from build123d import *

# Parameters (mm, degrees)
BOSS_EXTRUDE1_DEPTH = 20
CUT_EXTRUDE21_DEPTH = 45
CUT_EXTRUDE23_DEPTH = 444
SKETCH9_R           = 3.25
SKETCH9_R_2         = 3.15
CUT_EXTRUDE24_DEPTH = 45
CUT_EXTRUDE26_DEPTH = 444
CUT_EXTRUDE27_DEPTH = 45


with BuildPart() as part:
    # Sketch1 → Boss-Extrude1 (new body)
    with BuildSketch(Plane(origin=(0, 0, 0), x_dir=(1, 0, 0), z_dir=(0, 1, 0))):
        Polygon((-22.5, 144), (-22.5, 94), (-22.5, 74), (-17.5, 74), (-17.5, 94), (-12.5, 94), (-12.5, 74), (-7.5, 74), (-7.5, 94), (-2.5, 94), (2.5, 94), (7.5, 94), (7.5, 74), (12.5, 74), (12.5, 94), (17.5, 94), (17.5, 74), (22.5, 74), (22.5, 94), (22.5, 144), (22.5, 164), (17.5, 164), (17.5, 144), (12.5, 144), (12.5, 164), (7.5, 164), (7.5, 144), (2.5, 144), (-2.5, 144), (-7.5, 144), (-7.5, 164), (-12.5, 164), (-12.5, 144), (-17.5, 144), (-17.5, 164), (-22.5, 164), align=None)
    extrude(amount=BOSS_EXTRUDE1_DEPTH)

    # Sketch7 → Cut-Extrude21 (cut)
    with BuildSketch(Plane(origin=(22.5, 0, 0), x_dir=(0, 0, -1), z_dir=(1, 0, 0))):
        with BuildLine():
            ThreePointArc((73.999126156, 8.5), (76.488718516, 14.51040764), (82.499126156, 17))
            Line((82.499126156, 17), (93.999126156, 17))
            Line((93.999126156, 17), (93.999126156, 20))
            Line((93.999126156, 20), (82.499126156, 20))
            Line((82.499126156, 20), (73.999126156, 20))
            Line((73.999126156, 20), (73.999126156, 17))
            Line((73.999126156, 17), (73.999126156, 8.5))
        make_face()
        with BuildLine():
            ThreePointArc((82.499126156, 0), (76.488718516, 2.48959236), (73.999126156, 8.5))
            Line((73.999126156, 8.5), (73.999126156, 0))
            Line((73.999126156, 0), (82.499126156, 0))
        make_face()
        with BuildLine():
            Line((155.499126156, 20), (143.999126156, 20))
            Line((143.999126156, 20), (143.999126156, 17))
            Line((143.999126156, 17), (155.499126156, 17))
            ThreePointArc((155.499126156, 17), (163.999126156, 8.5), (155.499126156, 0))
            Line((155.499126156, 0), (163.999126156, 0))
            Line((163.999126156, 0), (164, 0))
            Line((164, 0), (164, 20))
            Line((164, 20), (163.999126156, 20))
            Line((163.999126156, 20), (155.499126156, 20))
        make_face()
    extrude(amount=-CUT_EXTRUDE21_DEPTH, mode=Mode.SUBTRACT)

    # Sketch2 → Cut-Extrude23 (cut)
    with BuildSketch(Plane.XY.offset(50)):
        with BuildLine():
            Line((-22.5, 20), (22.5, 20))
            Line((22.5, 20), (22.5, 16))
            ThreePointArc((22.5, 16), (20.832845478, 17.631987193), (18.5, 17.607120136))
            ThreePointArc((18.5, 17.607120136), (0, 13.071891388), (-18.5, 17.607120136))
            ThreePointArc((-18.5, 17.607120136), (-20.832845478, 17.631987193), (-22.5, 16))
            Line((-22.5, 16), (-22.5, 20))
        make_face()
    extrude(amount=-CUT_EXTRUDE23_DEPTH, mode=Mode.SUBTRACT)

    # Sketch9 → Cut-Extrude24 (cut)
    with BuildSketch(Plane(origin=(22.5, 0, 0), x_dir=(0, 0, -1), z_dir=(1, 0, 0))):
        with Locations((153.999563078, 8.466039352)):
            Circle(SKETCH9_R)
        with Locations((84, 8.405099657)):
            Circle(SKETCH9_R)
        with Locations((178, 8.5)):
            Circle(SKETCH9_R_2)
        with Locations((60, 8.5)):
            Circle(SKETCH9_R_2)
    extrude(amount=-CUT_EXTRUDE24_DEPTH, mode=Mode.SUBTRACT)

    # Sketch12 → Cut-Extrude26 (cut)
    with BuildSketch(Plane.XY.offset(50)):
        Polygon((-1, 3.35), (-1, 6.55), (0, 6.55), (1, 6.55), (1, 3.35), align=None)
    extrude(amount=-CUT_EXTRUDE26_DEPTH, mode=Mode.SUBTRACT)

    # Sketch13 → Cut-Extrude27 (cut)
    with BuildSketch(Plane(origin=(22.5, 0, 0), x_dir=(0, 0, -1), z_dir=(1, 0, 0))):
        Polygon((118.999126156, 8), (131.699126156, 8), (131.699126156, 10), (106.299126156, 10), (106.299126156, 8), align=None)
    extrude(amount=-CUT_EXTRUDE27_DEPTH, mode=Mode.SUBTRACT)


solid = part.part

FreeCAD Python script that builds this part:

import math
import FreeCAD as App
import Part
import Sketcher

doc = App.newDocument("Part")
body = doc.addObject("PartDesign::Body", "Body")

# Sketch on XZ plane
sketch1 = body.newObject("Sketcher::SketchObject", "Sketch")
sketch1.AttachmentSupport = (doc.getObject("XZ_Plane"), [""])
sketch1.MapMode = "FlatFace"
sketch1.addGeometry(Part.LineSegment(App.Vector(-22, -74, 0), App.Vector(-18, -74, 0)), False)
sketch1.addGeometry(Part.LineSegment(App.Vector(-18, -74, 0), App.Vector(-18, -94, 0)), False)
sketch1.addGeometry(Part.LineSegment(App.Vector(-18, -94, 0), App.Vector(-12, -94, 0)), False)
sketch1.addGeometry(Part.LineSegment(App.Vector(-12, -94, 0), App.Vector(-12, -74, 0)), False)
sketch1.addGeometry(Part.LineSegment(App.Vector(-12, -74, 0), App.Vector(-8, -74, 0)), False)
sketch1.addGeometry(Part.LineSegment(App.Vector(-8, -74, 0), App.Vector(-8, -94, 0)), False)
sketch1.addGeometry(Part.LineSegment(App.Vector(-8, -94, 0), App.Vector(8, -94, 0)), False)
sketch1.addGeometry(Part.LineSegment(App.Vector(8, -94, 0), App.Vector(8, -74, 0)), False)
sketch1.addGeometry(Part.LineSegment(App.Vector(8, -74, 0), App.Vector(12, -74, 0)), False)
sketch1.addGeometry(Part.LineSegment(App.Vector(12, -74, 0), App.Vector(12, -94, 0)), False)
sketch1.addGeometry(Part.LineSegment(App.Vector(12, -94, 0), App.Vector(18, -94, 0)), False)
sketch1.addGeometry(Part.LineSegment(App.Vector(18, -94, 0), App.Vector(18, -74, 0)), False)
sketch1.addGeometry(Part.LineSegment(App.Vector(18, -74, 0), App.Vector(22, -74, 0)), False)
sketch1.addGeometry(Part.LineSegment(App.Vector(22, -74, 0), App.Vector(22, -164, 0)), False)
sketch1.addGeometry(Part.LineSegment(App.Vector(22, -164, 0), App.Vector(18, -164, 0)), False)
sketch1.addGeometry(Part.LineSegment(App.Vector(18, -164, 0), App.Vector(18, -144, 0)), False)
sketch1.addGeometry(Part.LineSegment(App.Vector(18, -144, 0), App.Vector(12, -144, 0)), False)
sketch1.addGeometry(Part.LineSegment(App.Vector(12, -144, 0), App.Vector(12, -164, 0)), False)
sketch1.addGeometry(Part.LineSegment(App.Vector(12, -164, 0), App.Vector(8, -164, 0)), False)
sketch1.addGeometry(Part.LineSegment(App.Vector(8, -164, 0), App.Vector(8, -144, 0)), False)
sketch1.addGeometry(Part.LineSegment(App.Vector(8, -144, 0), App.Vector(-8, -144, 0)), False)
sketch1.addGeometry(Part.LineSegment(App.Vector(-8, -144, 0), App.Vector(-8, -164, 0)), False)
sketch1.addGeometry(Part.LineSegment(App.Vector(-8, -164, 0), App.Vector(-12, -164, 0)), False)
sketch1.addGeometry(Part.LineSegment(App.Vector(-12, -164, 0), App.Vector(-12, -144, 0)), False)
sketch1.addGeometry(Part.LineSegment(App.Vector(-12, -144, 0), App.Vector(-18, -144, 0)), False)
sketch1.addGeometry(Part.LineSegment(App.Vector(-18, -144, 0), App.Vector(-18, -164, 0)), False)
sketch1.addGeometry(Part.LineSegment(App.Vector(-18, -164, 0), App.Vector(-22, -164, 0)), False)
sketch1.addGeometry(Part.LineSegment(App.Vector(-22, -164, 0), App.Vector(-22, -74, 0)), False)
sketch1.addConstraint(Sketcher.Constraint("Coincident", 0, 2, 1, 1))
sketch1.addConstraint(Sketcher.Constraint("Coincident", 1, 2, 2, 1))
sketch1.addConstraint(Sketcher.Constraint("Coincident", 2, 2, 3, 1))
sketch1.addConstraint(Sketcher.Constraint("Coincident", 3, 2, 4, 1))
sketch1.addConstraint(Sketcher.Constraint("Coincident", 4, 2, 5, 1))
sketch1.addConstraint(Sketcher.Constraint("Coincident", 5, 2, 6, 1))
sketch1.addConstraint(Sketcher.Constraint("Coincident", 6, 2, 7, 1))
sketch1.addConstraint(Sketcher.Constraint("Coincident", 7, 2, 8, 1))
sketch1.addConstraint(Sketcher.Constraint("Coincident", 8, 2, 9, 1))
sketch1.addConstraint(Sketcher.Constraint("Coincident", 9, 2, 10, 1))
sketch1.addConstraint(Sketcher.Constraint("Coincident", 10, 2, 11, 1))
sketch1.addConstraint(Sketcher.Constraint("Coincident", 11, 2, 12, 1))
sketch1.addConstraint(Sketcher.Constraint("Coincident", 12, 2, 13, 1))
sketch1.addConstraint(Sketcher.Constraint("Coincident", 13, 2, 14, 1))
sketch1.addConstraint(Sketcher.Constraint("Coincident", 14, 2, 15, 1))
sketch1.addConstraint(Sketcher.Constraint("Coincident", 15, 2, 16, 1))
sketch1.addConstraint(Sketcher.Constraint("Coincident", 16, 2, 17, 1))
sketch1.addConstraint(Sketcher.Constraint("Coincident", 17, 2, 18, 1))
sketch1.addConstraint(Sketcher.Constraint("Coincident", 18, 2, 19, 1))
sketch1.addConstraint(Sketcher.Constraint("Coincident", 19, 2, 20, 1))
sketch1.addConstraint(Sketcher.Constraint("Coincident", 20, 2, 21, 1))
sketch1.addConstraint(Sketcher.Constraint("Coincident", 21, 2, 22, 1))
sketch1.addConstraint(Sketcher.Constraint("Coincident", 22, 2, 23, 1))
sketch1.addConstraint(Sketcher.Constraint("Coincident", 23, 2, 24, 1))
sketch1.addConstraint(Sketcher.Constraint("Coincident", 24, 2, 25, 1))
sketch1.addConstraint(Sketcher.Constraint("Coincident", 25, 2, 26, 1))
sketch1.addConstraint(Sketcher.Constraint("Coincident", 26, 2, 27, 1))
sketch1.addConstraint(Sketcher.Constraint("Coincident", 27, 2, 0, 1))
sketch1.addConstraint(Sketcher.Constraint("Horizontal", 0))
sketch1.addConstraint(Sketcher.Constraint("Vertical", 1))
sketch1.addConstraint(Sketcher.Constraint("Horizontal", 2))
sketch1.addConstraint(Sketcher.Constraint("Vertical", 3))
sketch1.addConstraint(Sketcher.Constraint("Horizontal", 4))
sketch1.addConstraint(Sketcher.Constraint("Vertical", 5))
sketch1.addConstraint(Sketcher.Constraint("Horizontal", 6))
sketch1.addConstraint(Sketcher.Constraint("Vertical", 7))
sketch1.addConstraint(Sketcher.Constraint("Horizontal", 8))
sketch1.addConstraint(Sketcher.Constraint("Vertical", 9))
sketch1.addConstraint(Sketcher.Constraint("Horizontal", 10))
sketch1.addConstraint(Sketcher.Constraint("Vertical", 11))
sketch1.addConstraint(Sketcher.Constraint("Horizontal", 12))
sketch1.addConstraint(Sketcher.Constraint("Vertical", 13))
sketch1.addConstraint(Sketcher.Constraint("Horizontal", 14))
sketch1.addConstraint(Sketcher.Constraint("Vertical", 15))
sketch1.addConstraint(Sketcher.Constraint("Horizontal", 16))
sketch1.addConstraint(Sketcher.Constraint("Vertical", 17))
sketch1.addConstraint(Sketcher.Constraint("Horizontal", 18))
sketch1.addConstraint(Sketcher.Constraint("Vertical", 19))
sketch1.addConstraint(Sketcher.Constraint("Horizontal", 20))
sketch1.addConstraint(Sketcher.Constraint("Vertical", 21))
sketch1.addConstraint(Sketcher.Constraint("Horizontal", 22))
sketch1.addConstraint(Sketcher.Constraint("Vertical", 23))
sketch1.addConstraint(Sketcher.Constraint("Horizontal", 24))
sketch1.addConstraint(Sketcher.Constraint("Vertical", 25))
sketch1.addConstraint(Sketcher.Constraint("Horizontal", 26))
sketch1.addConstraint(Sketcher.Constraint("Vertical", 27))
sketch1.addConstraint(Sketcher.Constraint("Symmetric", 4, 2, 7, 2, -2))
sketch1.addConstraint(Sketcher.Constraint("Symmetric", 2, 2, 9, 2, -2))
sketch1.addConstraint(Sketcher.Constraint("Symmetric", 0, 2, 11, 2, -2))
sketch1.addConstraint(Sketcher.Constraint("Symmetric", 18, 2, 21, 2, -2))
sketch1.addConstraint(Sketcher.Constraint("Symmetric", 16, 2, 23, 2, -2))
sketch1.addConstraint(Sketcher.Constraint("Symmetric", 14, 2, 25, 2, -2))
sketch1.addConstraint(Sketcher.Constraint("Horizontal", 0, 2, 3, 2))
sketch1.addConstraint(Sketcher.Constraint("Horizontal", 2, 2, 5, 2))
sketch1.addConstraint(Sketcher.Constraint("Horizontal", 14, 2, 17, 2))
sketch1.addConstraint(Sketcher.Constraint("Horizontal", 16, 2, 19, 2))
sketch1.addConstraint(Sketcher.Constraint("Vertical", 11, 2, 14, 2))
sketch1.addConstraint(Sketcher.Constraint("Vertical", 9, 2, 16, 2))
sketch1.addConstraint(Sketcher.Constraint("Vertical", 7, 2, 18, 2))
sketch1.addConstraint(Sketcher.Constraint("Equal", 0, 2))
sketch1.addConstraint(Sketcher.Constraint("Equal", 2, 4))
sketch1.addConstraint(Sketcher.Constraint("Equal", 10, 12))
sketch1.addConstraint(Sketcher.Constraint("Equal", 11, 15))
sketch1.addConstraint(Sketcher.Constraint("DistanceX", 0, 1, 0, 2, 5.0))
sketch1.addConstraint(Sketcher.Constraint("DistanceX", 6, 1, 6, 2, 15.0))
sketch1.addConstraint(Sketcher.Constraint("DistanceY", 1, 2, 1, 1, 20.0))
sketch1.addConstraint(Sketcher.Constraint("DistanceY", 13, 2, 13, 1, 90.0))
sketch1.addConstraint(Sketcher.Constraint("DistanceY", 0, 2, -1, 1, 74.0))
pad1 = body.newObject("PartDesign::Pad", "Pad")
pad1.Profile = sketch1
pad1.Length = 20
pad1.Reversed = True

# Sketch on YZ plane
sketch2 = body.newObject("Sketcher::SketchObject", "Sketch001")
sketch2.AttachmentSupport = (doc.getObject("YZ_Plane"), [""])
sketch2.MapMode = "FlatFace"
sketch2.AttachmentOffset = App.Placement(App.Vector(0, 0, 22.5), App.Rotation())
sketch2.addGeometry(Part.ArcOfCircle(Part.Circle(App.Vector(8.5, -82.5, 0), App.Vector(0, 0, 1), 8.5), math.radians(0), math.radians(90)), False)
sketch2.addGeometry(Part.LineSegment(App.Vector(17, -82.5, 0), App.Vector(17, -94, 0)), False)
sketch2.addGeometry(Part.LineSegment(App.Vector(17, -94, 0), App.Vector(20, -94, 0)), False)
sketch2.addGeometry(Part.LineSegment(App.Vector(20, -94, 0), App.Vector(20, -74, 0)), False)
sketch2.addGeometry(Part.LineSegment(App.Vector(20, -74, 0), App.Vector(8.5, -74, 0)), False)
sketch2.addGeometry(Part.ArcOfCircle(Part.Circle(App.Vector(8.5, -82.5, 0), App.Vector(0, 0, 1), 8.5), math.radians(90), math.radians(180)), False)
sketch2.addGeometry(Part.LineSegment(App.Vector(8.5, -74, 0), App.Vector(0, -74, 0)), False)
sketch2.addGeometry(Part.LineSegment(App.Vector(0, -74, 0), App.Vector(0, -82.5, 0)), False)
sketch2.addGeometry(Part.LineSegment(App.Vector(20, -144, 0), App.Vector(17, -144, 0)), False)
sketch2.addGeometry(Part.LineSegment(App.Vector(17, -144, 0), App.Vector(17, -155.5, 0)), False)
sketch2.addGeometry(Part.ArcOfCircle(Part.Circle(App.Vector(8.5, -155.5, 0), App.Vector(0, 0, 1), 8.5), math.radians(180), math.radians(360)), False)
sketch2.addGeometry(Part.LineSegment(App.Vector(0, -155.5, 0), App.Vector(0, -164, 0)), False)
sketch2.addGeometry(Part.LineSegment(App.Vector(0, -164, 0), App.Vector(20, -164, 0)), False)
sketch2.addGeometry(Part.LineSegment(App.Vector(20, -164, 0), App.Vector(20, -144, 0)), False)
sketch2.addConstraint(Sketcher.Constraint("Tangent", 0, 1, 1, 1))
sketch2.addConstraint(Sketcher.Constraint("Coincident", 1, 2, 2, 1))
sketch2.addConstraint(Sketcher.Constraint("Coincident", 2, 2, 3, 1))
sketch2.addConstraint(Sketcher.Constraint("Coincident", 3, 2, 4, 1))
sketch2.addConstraint(Sketcher.Constraint("Tangent", 4, 2, 0, 2))
sketch2.addConstraint(Sketcher.Constraint("Tangent", 5, 1, 6, 1))
sketch2.addConstraint(Sketcher.Constraint("Coincident", 6, 2, 7, 1))
sketch2.addConstraint(Sketcher.Constraint("Tangent", 7, 2, 5, 2))
sketch2.addConstraint(Sketcher.Constraint("Coincident", 8, 2, 9, 1))
sketch2.addConstraint(Sketcher.Constraint("Tangent", 9, 2, 10, 2))
sketch2.addConstraint(Sketcher.Constraint("Tangent", 10, 1, 11, 1))
sketch2.addConstraint(Sketcher.Constraint("Coincident", 11, 2, 12, 1))
sketch2.addConstraint(Sketcher.Constraint("Coincident", 12, 2, 13, 1))
sketch2.addConstraint(Sketcher.Constraint("Coincident", 13, 2, 8, 1))
sketch2.addConstraint(Sketcher.Constraint("Vertical", 1))
sketch2.addConstraint(Sketcher.Constraint("Horizontal", 2))
sketch2.addConstraint(Sketcher.Constraint("Vertical", 3))
sketch2.addConstraint(Sketcher.Constraint("Horizontal", 4))
sketch2.addConstraint(Sketcher.Constraint("Horizontal", 6))
sketch2.addConstraint(Sketcher.Constraint("Vertical", 7))
sketch2.addConstraint(Sketcher.Constraint("Horizontal", 8))
sketch2.addConstraint(Sketcher.Constraint("Vertical", 9))
sketch2.addConstraint(Sketcher.Constraint("Vertical", 11))
sketch2.addConstraint(Sketcher.Constraint("Horizontal", 12))
sketch2.addConstraint(Sketcher.Constraint("Vertical", 13))
sketch2.addConstraint(Sketcher.Constraint("Coincident", 5, 3, 0, 3))
sketch2.addConstraint(Sketcher.Constraint("Equal", 0, 5))
sketch2.addConstraint(Sketcher.Constraint("Equal", 5, 10))
sketch2.addConstraint(Sketcher.Constraint("PointOnObject", 6, 2, -2))
sketch2.addConstraint(Sketcher.Constraint("PointOnObject", 10, 1, -2))
sketch2.addConstraint(Sketcher.Constraint("Vertical", 3, 2, 12, 2))
sketch2.addConstraint(Sketcher.Constraint("Equal", 4, 1))
sketch2.addConstraint(Sketcher.Constraint("Equal", 1, 9))
sketch2.addConstraint(Sketcher.Constraint("Radius", 0, 8.5))
sketch2.addConstraint(Sketcher.Constraint("DistanceX", 2, 1, 2, 2, 3.0))
sketch2.addConstraint(Sketcher.Constraint("DistanceY", 11, 2, -1, 1, 164.0))
sketch2.addConstraint(Sketcher.Constraint("DistanceY", 10, 3, 0, 3, 73.0))
sketch2.addConstraint(Sketcher.Constraint("DistanceY", 11, 2, 11, 1, 8.500874))
pocket1 = body.newObject("PartDesign::Pocket", "Pocket")
pocket1.Profile = sketch2
pocket1.Length = 45

# Sketch on XY plane
sketch3 = body.newObject("Sketcher::SketchObject", "Sketch002")
sketch3.AttachmentSupport = (doc.getObject("XY_Plane"), [""])
sketch3.MapMode = "FlatFace"
sketch3.AttachmentOffset = App.Placement(App.Vector(0, 0, 50), App.Rotation())
sketch3.addGeometry(Part.LineSegment(App.Vector(22.5, 20, 0), App.Vector(-22.5, 20, 0)), False)
sketch3.addGeometry(Part.LineSegment(App.Vector(-22.5, 20, 0), App.Vector(-22.5, 16, 0)), False)
sketch3.addGeometry(Part.ArcOfCircle(Part.Circle(App.Vector(-19.7, 14.8, 0), App.Vector(0, 0, 1), 3), math.radians(67), math.radians(157)), False)
sketch3.addGeometry(Part.ArcOfCircle(Part.Circle(App.Vector(0, 53.1, 0), App.Vector(0, 0, 1), 40), math.radians(-118), math.radians(-62)), False)
sketch3.addGeometry(Part.ArcOfCircle(Part.Circle(App.Vector(19.7, 14.8, 0), App.Vector(0, 0, 1), 3), math.radians(23), math.radians(113)), False)
sketch3.addGeometry(Part.LineSegment(App.Vector(22.5, 16, 0), App.Vector(22.5, 20, 0)), False)
sketch3.addConstraint(Sketcher.Constraint("Coincident", 0, 2, 1, 1))
sketch3.addConstraint(Sketcher.Constraint("Coincident", 1, 2, 2, 2))
sketch3.addConstraint(Sketcher.Constraint("Coincident", 2, 1, 3, 1))
sketch3.addConstraint(Sketcher.Constraint("Coincident", 3, 2, 4, 2))
sketch3.addConstraint(Sketcher.Constraint("Coincident", 4, 1, 5, 1))
sketch3.addConstraint(Sketcher.Constraint("Coincident", 5, 2, 0, 1))
sketch3.addConstraint(Sketcher.Constraint("Horizontal", 0))
sketch3.addConstraint(Sketcher.Constraint("Vertical", 1))
sketch3.addConstraint(Sketcher.Constraint("Vertical", 5))
sketch3.addConstraint(Sketcher.Constraint("Equal", 2, 4))
sketch3.addConstraint(Sketcher.Constraint("Symmetric", 2, 3, 4, 3, -2))
sketch3.addConstraint(Sketcher.Constraint("PointOnObject", 3, 3, -2))
sketch3.addConstraint(Sketcher.Constraint("Horizontal", 1, 2, 4, 1))
sketch3.addConstraint(Sketcher.Constraint("Radius", 3, 40.0))
sketch3.addConstraint(Sketcher.Constraint("DistanceX", 0, 2, 0, 1, 45.0))
sketch3.addConstraint(Sketcher.Constraint("DistanceY", 1, 2, 1, 1, 4.0))
sketch3.addConstraint(Sketcher.Constraint("DistanceY", -1, 1, 0, 2, 20.0))
sketch3.addConstraint(Sketcher.Constraint("DistanceX", 1, 2, 2, 1, 4.0))
sketch3.addConstraint(Sketcher.Constraint("Radius", 2, 3.048183))
sketch3.addConstraint(Sketcher.Constraint("DistanceX", 2, 3, -1, 1, 19.69644))
pocket2 = body.newObject("PartDesign::Pocket", "Pocket001")
pocket2.Profile = sketch3
pocket2.Length = 444

# Sketch on YZ plane
sketch4 = body.newObject("Sketcher::SketchObject", "Sketch003")
sketch4.AttachmentSupport = (doc.getObject("YZ_Plane"), [""])
sketch4.MapMode = "FlatFace"
sketch4.AttachmentOffset = App.Placement(App.Vector(0, 0, 22.5), App.Rotation())
sketch4.addGeometry(Part.Circle(App.Vector(8.466039, -153.999563, 0), App.Vector(0, 0, 1), 3.25), False)
sketch4.addGeometry(Part.Circle(App.Vector(8.4051, -84, 0), App.Vector(0, 0, 1), 3.25), False)
sketch4.addGeometry(Part.Circle(App.Vector(8.5, -178, 0), App.Vector(0, 0, 1), 3.15), False)
sketch4.addGeometry(Part.Circle(App.Vector(8.5, -60, 0), App.Vector(0, 0, 1), 3.15), False)
sketch4.addConstraint(Sketcher.Constraint("Equal", 0, 1))
sketch4.addConstraint(Sketcher.Constraint("Equal", 2, 3))
sketch4.addConstraint(Sketcher.Constraint("Vertical", 2, 3, 3, 3))
sketch4.addConstraint(Sketcher.Constraint("Diameter", 0, 6.5))
sketch4.addConstraint(Sketcher.Constraint("Diameter", 2, 6.3))
sketch4.addConstraint(Sketcher.Constraint("DistanceY", 1, 3, -1, 1, 84.0))
sketch4.addConstraint(Sketcher.Constraint("DistanceY", 2, 3, -1, 1, 178.0))
sketch4.addConstraint(Sketcher.Constraint("DistanceY", 3, 3, -1, 1, 60.0))
sketch4.addConstraint(Sketcher.Constraint("DistanceX", -1, 1, 2, 3, 8.5))
sketch4.addConstraint(Sketcher.Constraint("DistanceX", -1, 1, 1, 3, 8.4051))
sketch4.addConstraint(Sketcher.Constraint("DistanceX", -1, 1, 0, 3, 8.466039))
sketch4.addConstraint(Sketcher.Constraint("DistanceY", 0, 3, -1, 1, 153.999563))
pocket3 = body.newObject("PartDesign::Pocket", "Pocket002")
pocket3.Profile = sketch4
pocket3.Length = 45

# Sketch on XY plane
sketch5 = body.newObject("Sketcher::SketchObject", "Sketch004")
sketch5.AttachmentSupport = (doc.getObject("XY_Plane"), [""])
sketch5.MapMode = "FlatFace"
sketch5.AttachmentOffset = App.Placement(App.Vector(0, 0, 50), App.Rotation())
sketch5.addGeometry(Part.LineSegment(App.Vector(-1, 6.5, 0), App.Vector(-1, 3.4, 0)), False)
sketch5.addGeometry(Part.LineSegment(App.Vector(-1, 3.4, 0), App.Vector(1, 3.4, 0)), False)
sketch5.addGeometry(Part.LineSegment(App.Vector(1, 3.4, 0), App.Vector(1, 6.5, 0)), False)
sketch5.addGeometry(Part.LineSegment(App.Vector(1, 6.5, 0), App.Vector(-1, 6.5, 0)), False)
sketch5.addConstraint(Sketcher.Constraint("Coincident", 0, 2, 1, 1))
sketch5.addConstraint(Sketcher.Constraint("Coincident", 1, 2, 2, 1))
sketch5.addConstraint(Sketcher.Constraint("Coincident", 2, 2, 3, 1))
sketch5.addConstraint(Sketcher.Constraint("Coincident", 3, 2, 0, 1))
sketch5.addConstraint(Sketcher.Constraint("Vertical", 0))
sketch5.addConstraint(Sketcher.Constraint("Horizontal", 1))
sketch5.addConstraint(Sketcher.Constraint("Vertical", 2))
sketch5.addConstraint(Sketcher.Constraint("Horizontal", 3))
sketch5.addConstraint(Sketcher.Constraint("DistanceX", 1, 1, 1, 2, 2.0))
sketch5.addConstraint(Sketcher.Constraint("DistanceY", 0, 2, 0, 1, 3.2))
sketch5.addConstraint(Sketcher.Constraint("DistanceX", 0, 2, -1, 1, 1.0))
sketch5.addConstraint(Sketcher.Constraint("DistanceY", -1, 1, 0, 2, 3.35))
pocket4 = body.newObject("PartDesign::Pocket", "Pocket003")
pocket4.Profile = sketch5
pocket4.Length = 444

# Sketch on YZ plane
sketch6 = body.newObject("Sketcher::SketchObject", "Sketch005")
sketch6.AttachmentSupport = (doc.getObject("YZ_Plane"), [""])
sketch6.MapMode = "FlatFace"
sketch6.AttachmentOffset = App.Placement(App.Vector(0, 0, 22.5), App.Rotation())
sketch6.addGeometry(Part.LineSegment(App.Vector(8, -131.7, 0), App.Vector(10, -131.7, 0)), False)
sketch6.addGeometry(Part.LineSegment(App.Vector(10, -131.7, 0), App.Vector(10, -106.3, 0)), False)
sketch6.addGeometry(Part.LineSegment(App.Vector(10, -106.3, 0), App.Vector(8, -106.3, 0)), False)
sketch6.addGeometry(Part.LineSegment(App.Vector(8, -106.3, 0), App.Vector(8, -131.7, 0)), False)
sketch6.addConstraint(Sketcher.Constraint("Coincident", 0, 2, 1, 1))
sketch6.addConstraint(Sketcher.Constraint("Coincident", 1, 2, 2, 1))
sketch6.addConstraint(Sketcher.Constraint("Coincident", 2, 2, 3, 1))
sketch6.addConstraint(Sketcher.Constraint("Coincident", 3, 2, 0, 1))
sketch6.addConstraint(Sketcher.Constraint("Horizontal", 0))
sketch6.addConstraint(Sketcher.Constraint("Vertical", 1))
sketch6.addConstraint(Sketcher.Constraint("Horizontal", 2))
sketch6.addConstraint(Sketcher.Constraint("Vertical", 3))
sketch6.addConstraint(Sketcher.Constraint("DistanceX", 0, 1, 0, 2, 2.0))
sketch6.addConstraint(Sketcher.Constraint("DistanceY", 1, 1, 1, 2, 25.4))
sketch6.addConstraint(Sketcher.Constraint("DistanceX", -1, 1, 0, 2, 10.0))
sketch6.addConstraint(Sketcher.Constraint("DistanceY", 0, 2, -1, 1, 131.699126))
pocket5 = body.newObject("PartDesign::Pocket", "Pocket004")
pocket5.Profile = sketch6
pocket5.Length = 45

doc.recompute()
